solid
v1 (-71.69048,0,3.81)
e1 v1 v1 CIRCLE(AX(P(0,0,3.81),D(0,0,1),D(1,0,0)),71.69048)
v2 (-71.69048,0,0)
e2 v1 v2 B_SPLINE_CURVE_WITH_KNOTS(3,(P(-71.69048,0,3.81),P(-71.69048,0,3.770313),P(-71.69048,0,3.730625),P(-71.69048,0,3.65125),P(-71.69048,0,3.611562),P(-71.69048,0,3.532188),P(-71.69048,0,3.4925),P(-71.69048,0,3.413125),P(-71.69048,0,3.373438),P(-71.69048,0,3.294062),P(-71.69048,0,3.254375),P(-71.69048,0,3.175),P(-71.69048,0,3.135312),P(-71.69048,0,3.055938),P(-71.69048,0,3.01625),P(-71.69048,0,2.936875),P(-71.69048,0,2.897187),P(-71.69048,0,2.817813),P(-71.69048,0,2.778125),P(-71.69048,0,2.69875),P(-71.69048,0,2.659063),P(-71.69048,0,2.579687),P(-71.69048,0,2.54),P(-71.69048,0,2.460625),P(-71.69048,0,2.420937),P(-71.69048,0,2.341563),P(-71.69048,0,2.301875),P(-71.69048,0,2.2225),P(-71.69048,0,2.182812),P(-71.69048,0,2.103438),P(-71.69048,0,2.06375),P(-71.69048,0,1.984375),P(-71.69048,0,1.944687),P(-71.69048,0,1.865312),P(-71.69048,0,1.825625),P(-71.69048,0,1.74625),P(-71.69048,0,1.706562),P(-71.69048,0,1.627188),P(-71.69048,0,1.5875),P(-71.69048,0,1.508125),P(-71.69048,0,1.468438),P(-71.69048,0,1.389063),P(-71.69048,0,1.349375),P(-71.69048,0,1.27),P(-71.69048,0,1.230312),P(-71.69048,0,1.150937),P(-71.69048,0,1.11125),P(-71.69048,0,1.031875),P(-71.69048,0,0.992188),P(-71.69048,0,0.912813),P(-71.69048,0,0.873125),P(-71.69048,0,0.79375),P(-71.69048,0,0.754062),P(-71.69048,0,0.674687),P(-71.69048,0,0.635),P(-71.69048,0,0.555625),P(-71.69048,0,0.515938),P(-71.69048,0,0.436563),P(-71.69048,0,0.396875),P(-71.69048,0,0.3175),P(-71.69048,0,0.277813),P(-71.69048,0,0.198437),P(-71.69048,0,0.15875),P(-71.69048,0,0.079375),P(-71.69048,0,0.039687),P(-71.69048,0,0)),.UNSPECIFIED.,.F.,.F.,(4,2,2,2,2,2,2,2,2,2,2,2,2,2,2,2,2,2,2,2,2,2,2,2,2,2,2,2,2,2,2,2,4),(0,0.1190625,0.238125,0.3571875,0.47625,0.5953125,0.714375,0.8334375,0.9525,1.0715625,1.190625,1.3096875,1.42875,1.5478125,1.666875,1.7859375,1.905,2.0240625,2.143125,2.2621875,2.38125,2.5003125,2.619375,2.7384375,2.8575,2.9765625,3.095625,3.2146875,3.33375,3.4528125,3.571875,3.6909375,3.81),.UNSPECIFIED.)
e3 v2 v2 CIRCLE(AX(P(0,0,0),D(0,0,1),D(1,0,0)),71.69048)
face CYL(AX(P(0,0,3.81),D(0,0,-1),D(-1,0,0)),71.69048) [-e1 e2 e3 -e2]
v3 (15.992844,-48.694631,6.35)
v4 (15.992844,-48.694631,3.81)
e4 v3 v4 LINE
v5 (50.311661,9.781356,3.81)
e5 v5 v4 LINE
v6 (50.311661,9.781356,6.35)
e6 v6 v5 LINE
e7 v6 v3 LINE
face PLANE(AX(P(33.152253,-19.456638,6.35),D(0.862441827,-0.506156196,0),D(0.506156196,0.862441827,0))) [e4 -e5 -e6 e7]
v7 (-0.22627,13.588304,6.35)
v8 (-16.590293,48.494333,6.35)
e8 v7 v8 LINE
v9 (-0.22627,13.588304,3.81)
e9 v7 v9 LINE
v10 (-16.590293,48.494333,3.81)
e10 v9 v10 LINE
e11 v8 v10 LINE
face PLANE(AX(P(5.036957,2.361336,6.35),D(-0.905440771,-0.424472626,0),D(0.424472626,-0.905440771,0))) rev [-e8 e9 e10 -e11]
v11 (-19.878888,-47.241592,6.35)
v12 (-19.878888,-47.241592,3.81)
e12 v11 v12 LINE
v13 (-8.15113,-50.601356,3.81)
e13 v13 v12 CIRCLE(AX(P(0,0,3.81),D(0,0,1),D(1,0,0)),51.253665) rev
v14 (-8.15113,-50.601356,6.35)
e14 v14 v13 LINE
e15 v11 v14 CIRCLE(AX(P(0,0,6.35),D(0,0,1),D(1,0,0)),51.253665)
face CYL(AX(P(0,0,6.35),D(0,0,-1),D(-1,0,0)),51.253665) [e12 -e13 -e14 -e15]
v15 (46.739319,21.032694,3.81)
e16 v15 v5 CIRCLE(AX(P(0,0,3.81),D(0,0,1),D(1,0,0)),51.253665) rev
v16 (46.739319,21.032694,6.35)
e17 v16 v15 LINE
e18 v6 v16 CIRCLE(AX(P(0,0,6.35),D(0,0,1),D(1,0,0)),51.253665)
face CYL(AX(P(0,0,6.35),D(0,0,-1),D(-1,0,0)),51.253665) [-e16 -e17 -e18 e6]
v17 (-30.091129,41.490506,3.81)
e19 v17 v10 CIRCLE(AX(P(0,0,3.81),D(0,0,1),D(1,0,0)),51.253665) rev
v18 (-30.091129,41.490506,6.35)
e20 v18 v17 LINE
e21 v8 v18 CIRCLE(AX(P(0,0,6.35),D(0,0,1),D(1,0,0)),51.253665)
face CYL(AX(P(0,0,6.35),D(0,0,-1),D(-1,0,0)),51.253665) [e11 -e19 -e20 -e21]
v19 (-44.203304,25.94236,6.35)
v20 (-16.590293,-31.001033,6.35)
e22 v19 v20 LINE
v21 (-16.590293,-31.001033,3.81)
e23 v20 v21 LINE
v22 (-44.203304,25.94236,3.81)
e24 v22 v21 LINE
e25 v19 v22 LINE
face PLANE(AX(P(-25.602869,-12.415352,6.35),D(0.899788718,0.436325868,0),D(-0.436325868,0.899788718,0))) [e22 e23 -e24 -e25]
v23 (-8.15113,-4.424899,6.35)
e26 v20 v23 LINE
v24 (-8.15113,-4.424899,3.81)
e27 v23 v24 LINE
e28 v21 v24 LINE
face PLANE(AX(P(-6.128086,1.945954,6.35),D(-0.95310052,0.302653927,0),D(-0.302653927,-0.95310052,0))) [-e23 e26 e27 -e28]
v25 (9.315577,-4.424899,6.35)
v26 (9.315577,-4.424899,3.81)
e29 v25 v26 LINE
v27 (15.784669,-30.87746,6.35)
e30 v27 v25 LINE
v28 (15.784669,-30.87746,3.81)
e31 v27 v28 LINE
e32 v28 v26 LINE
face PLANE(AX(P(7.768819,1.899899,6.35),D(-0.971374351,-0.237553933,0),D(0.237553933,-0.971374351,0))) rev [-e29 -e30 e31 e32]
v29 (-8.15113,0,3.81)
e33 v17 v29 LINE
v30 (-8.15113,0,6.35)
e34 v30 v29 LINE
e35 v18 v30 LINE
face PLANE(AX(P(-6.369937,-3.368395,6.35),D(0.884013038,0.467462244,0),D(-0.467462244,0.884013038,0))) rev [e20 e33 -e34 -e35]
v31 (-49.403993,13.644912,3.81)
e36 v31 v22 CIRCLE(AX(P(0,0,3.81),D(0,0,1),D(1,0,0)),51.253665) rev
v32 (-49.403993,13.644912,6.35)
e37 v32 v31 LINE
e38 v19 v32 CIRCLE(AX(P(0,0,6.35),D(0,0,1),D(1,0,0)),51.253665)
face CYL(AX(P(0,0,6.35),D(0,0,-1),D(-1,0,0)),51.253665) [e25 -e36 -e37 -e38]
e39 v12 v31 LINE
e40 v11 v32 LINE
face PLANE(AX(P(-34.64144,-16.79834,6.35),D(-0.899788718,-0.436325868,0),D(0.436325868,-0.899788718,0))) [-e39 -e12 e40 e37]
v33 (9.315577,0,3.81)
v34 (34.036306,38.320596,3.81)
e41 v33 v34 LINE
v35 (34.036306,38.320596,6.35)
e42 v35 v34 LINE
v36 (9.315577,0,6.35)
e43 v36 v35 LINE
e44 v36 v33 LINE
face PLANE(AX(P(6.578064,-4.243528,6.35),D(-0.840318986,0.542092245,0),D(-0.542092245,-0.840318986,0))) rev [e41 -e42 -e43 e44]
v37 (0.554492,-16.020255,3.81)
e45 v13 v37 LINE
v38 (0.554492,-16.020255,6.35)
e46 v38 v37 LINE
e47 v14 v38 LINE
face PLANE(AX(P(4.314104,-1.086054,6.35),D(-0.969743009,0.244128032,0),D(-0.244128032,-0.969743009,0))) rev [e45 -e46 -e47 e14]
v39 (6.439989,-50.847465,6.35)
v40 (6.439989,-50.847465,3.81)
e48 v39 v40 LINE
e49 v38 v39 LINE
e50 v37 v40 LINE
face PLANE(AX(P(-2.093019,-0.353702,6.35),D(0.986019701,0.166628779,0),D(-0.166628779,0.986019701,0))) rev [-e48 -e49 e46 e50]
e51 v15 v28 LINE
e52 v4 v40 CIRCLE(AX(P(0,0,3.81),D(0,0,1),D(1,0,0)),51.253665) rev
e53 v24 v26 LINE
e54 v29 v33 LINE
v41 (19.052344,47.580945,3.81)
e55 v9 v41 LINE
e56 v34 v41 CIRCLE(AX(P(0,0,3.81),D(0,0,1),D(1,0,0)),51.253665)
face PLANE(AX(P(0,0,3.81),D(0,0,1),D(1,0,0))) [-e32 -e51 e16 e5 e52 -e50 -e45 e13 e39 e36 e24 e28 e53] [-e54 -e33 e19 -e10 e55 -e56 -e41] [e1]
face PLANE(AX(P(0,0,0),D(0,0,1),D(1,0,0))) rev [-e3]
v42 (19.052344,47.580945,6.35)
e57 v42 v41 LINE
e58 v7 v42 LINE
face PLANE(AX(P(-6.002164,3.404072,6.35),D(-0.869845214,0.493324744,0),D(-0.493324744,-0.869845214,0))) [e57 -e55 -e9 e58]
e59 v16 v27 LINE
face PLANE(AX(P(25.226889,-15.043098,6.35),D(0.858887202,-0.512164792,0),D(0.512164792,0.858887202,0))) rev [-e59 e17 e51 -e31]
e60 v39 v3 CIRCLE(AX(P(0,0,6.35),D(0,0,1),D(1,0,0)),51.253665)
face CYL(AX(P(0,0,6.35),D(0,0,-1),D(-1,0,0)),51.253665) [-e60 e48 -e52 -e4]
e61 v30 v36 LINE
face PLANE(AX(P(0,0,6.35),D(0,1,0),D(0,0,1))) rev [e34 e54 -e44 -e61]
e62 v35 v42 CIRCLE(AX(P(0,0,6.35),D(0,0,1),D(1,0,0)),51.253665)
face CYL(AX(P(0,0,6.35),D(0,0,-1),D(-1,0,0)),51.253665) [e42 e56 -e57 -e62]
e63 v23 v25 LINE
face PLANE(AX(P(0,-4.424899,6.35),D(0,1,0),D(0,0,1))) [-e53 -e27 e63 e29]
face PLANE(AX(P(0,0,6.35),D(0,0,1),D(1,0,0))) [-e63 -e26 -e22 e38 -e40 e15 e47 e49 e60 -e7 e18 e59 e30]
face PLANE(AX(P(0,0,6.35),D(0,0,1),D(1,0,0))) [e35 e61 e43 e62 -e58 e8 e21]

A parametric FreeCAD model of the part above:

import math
import FreeCAD as App
import Part
import Sketcher
from FreeCAD import Vector
Q = App.Units.Quantity

doc = App.newDocument("Part")
body = doc.addObject("PartDesign::Body", "Body")

# Sketch on XY plane
sketch1 = body.newObject("Sketcher::SketchObject", "Sketch")
sketch1.AttachmentSupport = (doc.getObject("XY_Plane"), [""])
sketch1.MapMode = "FlatFace"
sketch1.addGeometry(Part.Circle(Vector(0, 0, 0), Vector(0, 0, 1), 59), False)
sketch1.addGeometry(Part.Circle(Vector(0, 0, 0), Vector(0, 0, 1), 51), False)
sketch1.addConstraint(Sketcher.Constraint("Coincident", 0, 3, -1, 1))
sketch1.addConstraint(Sketcher.Constraint("Coincident", 1, 3, -1, 1))
sketch1.addConstraint(Sketcher.Constraint("Diameter", 0, 117.980961))
sketch1.addConstraint(Sketcher.Constraint("Diameter", 1, 102.50733))
pad1 = body.newObject("PartDesign::Pad", "Pad")
pad1.Profile = sketch1
pad1.Length = Q("0.15 in")

# Sketch on XY plane
sketch2 = body.newObject("Sketcher::SketchObject", "Sketch001")
sketch2.AttachmentSupport = (doc.getObject("XY_Plane"), [""])
sketch2.MapMode = "FlatFace"
sketch2.addGeometry(Part.ArcOfCircle(Part.Circle(Vector(0, 0, 0), Vector(0, 0, 1), 51), math.radians(108.89), math.radians(125.95)), False)
sketch2.addGeometry(Part.LineSegment(Vector(-30, 41, 0), Vector(-8, 0, 0)), False)
sketch2.addGeometry(Part.LineSegment(Vector(-8, 0, 0), Vector(9, 0, 0)), False)
sketch2.addGeometry(Part.LineSegment(Vector(9, 0, 0), Vector(34, 38, 0)), False)
sketch2.addGeometry(Part.ArcOfCircle(Part.Circle(Vector(0, 0, 0), Vector(0, 0, 1), 51), math.radians(48.39), math.radians(68.18)), False)
sketch2.addGeometry(Part.LineSegment(Vector(19, 48, 0), Vector(0, 14, 0)), False)
sketch2.addGeometry(Part.LineSegment(Vector(0, 14, 0), Vector(-17, 48, 0)), False)
sketch2.addConstraint(Sketcher.Constraint("Coincident", 0, 2, 1, 1))
sketch2.addConstraint(Sketcher.Constraint("Coincident", 1, 2, 2, 1))
sketch2.addConstraint(Sketcher.Constraint("Coincident", 2, 2, 3, 1))
sketch2.addConstraint(Sketcher.Constraint("Coincident", 3, 2, 4, 1))
sketch2.addConstraint(Sketcher.Constraint("Coincident", 4, 2, 5, 1))
sketch2.addConstraint(Sketcher.Constraint("Coincident", 5, 2, 6, 1))
sketch2.addConstraint(Sketcher.Constraint("Coincident", 6, 2, 0, 1))
sketch2.addConstraint(Sketcher.Constraint("Horizontal", 2))
sketch2.addConstraint(Sketcher.Constraint("Coincident", 0, 3, -1, 1))
sketch2.addConstraint(Sketcher.Constraint("Coincident", 4, 3, -1, 1))
sketch2.addConstraint(Sketcher.Constraint("Equal", 0, 4))
sketch2.addConstraint(Sketcher.Constraint("PointOnObject", 1, 2, -1))
sketch2.addConstraint(Sketcher.Constraint("Radius", 0, 51.253665))
sketch2.addConstraint(Sketcher.Constraint("DistanceX", 0, 2, 1, 2, 21.939999))
sketch2.addConstraint(Sketcher.Constraint("Distance", 1, 46.93427))
sketch2.addConstraint(Sketcher.Constraint("Distance", 3, 45.60244))
sketch2.addConstraint(Sketcher.Constraint("Distance", 6, 38.551421))
sketch2.addConstraint(Sketcher.Constraint("DistanceX", 2, 1, 2, 2, 17.466706))
sketch2.addConstraint(Sketcher.Constraint("DistanceX", 5, 2, -1, 1, 0.22627))
sketch2.addConstraint(Sketcher.Constraint("DistanceX", 4, 2, 3, 2, 14.983961))
sketch2.addConstraint(Sketcher.Constraint("DistanceY", 5, 2, 4, 2, 33.992641))
pad2 = body.newObject("PartDesign::Pad", "Pad001")
pad2.Profile = sketch2
pad2.Length = Q("0.25 in")

# Sketch on XY plane
sketch3 = body.newObject("Sketcher::SketchObject", "Sketch002")
sketch3.AttachmentSupport = (doc.getObject("XY_Plane"), [""])
sketch3.MapMode = "FlatFace"
sketch3.addGeometry(Part.LineSegment(Vector(-17, -31, 0), Vector(-44, 26, 0)), False)
sketch3.addGeometry(Part.ArcOfCircle(Part.Circle(Vector(0, 0, 0), Vector(0, 0, 1), 51), math.radians(149.59), math.radians(164.56)), False)
sketch3.addGeometry(Part.LineSegment(Vector(-49, 14, 0), Vector(-20, -47, 0)), False)
sketch3.addGeometry(Part.ArcOfCircle(Part.Circle(Vector(0, 0, 0), Vector(0, 0, 1), 51), math.radians(-112.82), math.radians(-99.15)), False)
sketch3.addGeometry(Part.LineSegment(Vector(-8, -51, 0), Vector(1, -16, 0)), False)
sketch3.addGeometry(Part.LineSegment(Vector(1, -16, 0), Vector(6, -51, 0)), False)
sketch3.addGeometry(Part.ArcOfCircle(Part.Circle(Vector(0, 0, 0), Vector(0, 0, 1), 51), math.radians(-82.78), math.radians(-71.82)), False)
sketch3.addGeometry(Part.LineSegment(Vector(16, -49, 0), Vector(50, 10, 0)), False)
sketch3.addGeometry(Part.ArcOfCircle(Part.Circle(Vector(0, 0, 0), Vector(0, 0, 1), 51), math.radians(11), math.radians(24.23)), False)
sketch3.addGeometry(Part.LineSegment(Vector(47, 21, 0), Vector(16, -31, 0)), False)
sketch3.addGeometry(Part.LineSegment(Vector(16, -31, 0), Vector(9, -4, 0)), False)
sketch3.addGeometry(Part.LineSegment(Vector(9, -4, 0), Vector(-8, -4, 0)), False)
sketch3.addGeometry(Part.LineSegment(Vector(-8, -4, 0), Vector(-17, -31, 0)), False)
sketch3.addConstraint(Sketcher.Constraint("Coincident", 0, 2, 1, 1))
sketch3.addConstraint(Sketcher.Constraint("Coincident", 1, 2, 2, 1))
sketch3.addConstraint(Sketcher.Constraint("Coincident", 2, 2, 3, 1))
sketch3.addConstraint(Sketcher.Constraint("Coincident", 3, 2, 4, 1))
sketch3.addConstraint(Sketcher.Constraint("Coincident", 4, 2, 5, 1))
sketch3.addConstraint(Sketcher.Constraint("Coincident", 5, 2, 6, 1))
sketch3.addConstraint(Sketcher.Constraint("Coincident", 6, 2, 7, 1))
sketch3.addConstraint(Sketcher.Constraint("Coincident", 7, 2, 8, 1))
sketch3.addConstraint(Sketcher.Constraint("Coincident", 8, 2, 9, 1))
sketch3.addConstraint(Sketcher.Constraint("Coincident", 9, 2, 10, 1))
sketch3.addConstraint(Sketcher.Constraint("Coincident", 10, 2, 11, 1))
sketch3.addConstraint(Sketcher.Constraint("Coincident", 11, 2, 12, 1))
sketch3.addConstraint(Sketcher.Constraint("Coincident", 12, 2, 0, 1))
sketch3.addConstraint(Sketcher.Constraint("Horizontal", 11))
sketch3.addConstraint(Sketcher.Constraint("Coincident", 1, 3, -1, 1))
sketch3.addConstraint(Sketcher.Constraint("Coincident", 3, 3, -1, 1))
sketch3.addConstraint(Sketcher.Constraint("Coincident", 6, 3, -1, 1))
sketch3.addConstraint(Sketcher.Constraint("Coincident", 8, 3, -1, 1))
sketch3.addConstraint(Sketcher.Constraint("Equal", 1, 3))
sketch3.addConstraint(Sketcher.Constraint("Equal", 3, 6))
sketch3.addConstraint(Sketcher.Constraint("Equal", 6, 8))
sketch3.addConstraint(Sketcher.Constraint("Parallel", 0, 2))
sketch3.addConstraint(Sketcher.Constraint("Vertical", 3, 2, 11, 2))
sketch3.addConstraint(Sketcher.Constraint("Radius", 1, 51.253665))
sketch3.addConstraint(Sketcher.Constraint("DistanceY", 10, 2, -1, 1, 4.424899))
sketch3.addConstraint(Sketcher.Constraint("DistanceY", 3, 2, 4, 2, 34.581101))
sketch3.addConstraint(Sketcher.Constraint("DistanceX", 3, 2, 9, 2, 23.935798))
sketch3.addConstraint(Sketcher.Constraint("Distance", 7, 67.802818))
sketch3.addConstraint(Sketcher.Constraint("Distance", 9, 60.438849))
sketch3.addConstraint(Sketcher.Constraint("DistanceX", 11, 2, 11, 1, 17.466706))
sketch3.addConstraint(Sketcher.Constraint("DistanceY", -1, 1, 0, 2, 25.94236))
sketch3.addConstraint(Sketcher.Constraint("DistanceY", 2, 2, -1, 1, 47.241592))
sketch3.addConstraint(Sketcher.Constraint("DistanceX", 3, 2, -1, 1, 8.15113))
sketch3.addConstraint(Sketcher.Constraint("DistanceX", -1, 1, 5, 2, 6.439989))
sketch3.addConstraint(Sketcher.Constraint("DistanceY", 6, 2, -1, 1, 48.694631))
sketch3.addConstraint(Sketcher.Constraint("DistanceX", -1, 1, 8, 2, 46.739319))
sketch3.addConstraint(Sketcher.Constraint("DistanceX", 1, 2, 0, 2, 5.200689))
sketch3.addConstraint(Sketcher.Constraint("DistanceX", 3, 2, 4, 2, 8.705622))
sketch3.addConstraint(Sketcher.Constraint("DistanceY", 2, 2, 12, 2, 16.240558))
pad3 = body.newObject("PartDesign::Pad", "Pad002")
pad3.Profile = sketch3
pad3.Length = Q("0.25 in")

# Sketch on XY plane
sketch4 = body.newObject("Sketcher::SketchObject", "Sketch003")
sketch4.AttachmentSupport = (doc.getObject("XY_Plane"), [""])
sketch4.MapMode = "FlatFace"
sketch4.addGeometry(Part.ArcOfCircle(Part.Circle(Vector(0, 0, 0), Vector(0, 0, 1), 51), math.radians(108.89), math.radians(125.95)), False)
sketch4.addGeometry(Part.LineSegment(Vector(-30, 41, 0), Vector(-8, 0, 0)), False)
sketch4.addGeometry(Part.LineSegment(Vector(-8, 0, 0), Vector(9, 0, 0)), False)
sketch4.addGeometry(Part.LineSegment(Vector(9, 0, 0), Vector(34, 38, 0)), False)
sketch4.addGeometry(Part.ArcOfCircle(Part.Circle(Vector(0, 0, 0), Vector(0, 0, 1), 51), math.radians(48.39), math.radians(68.18)), False)
sketch4.addGeometry(Part.LineSegment(Vector(19, 48, 0), Vector(0, 14, 0)), False)
sketch4.addGeometry(Part.LineSegment(Vector(0, 14, 0), Vector(-17, 48, 0)), False)
sketch4.addConstraint(Sketcher.Constraint("Coincident", 0, 2, 1, 1))
sketch4.addConstraint(Sketcher.Constraint("Coincident", 1, 2, 2, 1))
sketch4.addConstraint(Sketcher.Constraint("Coincident", 2, 2, 3, 1))
sketch4.addConstraint(Sketcher.Constraint("Coincident", 3, 2, 4, 1))
sketch4.addConstraint(Sketcher.Constraint("Coincident", 4, 2, 5, 1))
sketch4.addConstraint(Sketcher.Constraint("Coincident", 5, 2, 6, 1))
sketch4.addConstraint(Sketcher.Constraint("Coincident", 6, 2, 0, 1))
sketch4.addConstraint(Sketcher.Constraint("Horizontal", 2))
sketch4.addConstraint(Sketcher.Constraint("Coincident", 0, 3, -1, 1))
sketch4.addConstraint(Sketcher.Constraint("Coincident", 4, 3, -1, 1))
sketch4.addConstraint(Sketcher.Constraint("Equal", 0, 4))
sketch4.addConstraint(Sketcher.Constraint("PointOnObject", 1, 2, -1))
sketch4.addConstraint(Sketcher.Constraint("Radius", 0, 51.253665))
sketch4.addConstraint(Sketcher.Constraint("DistanceX", 0, 2, 1, 2, 21.939999))
sketch4.addConstraint(Sketcher.Constraint("Distance", 1, 46.93427))
sketch4.addConstraint(Sketcher.Constraint("Distance", 3, 45.60244))
sketch4.addConstraint(Sketcher.Constraint("Distance", 6, 38.551421))
sketch4.addConstraint(Sketcher.Constraint("DistanceX", 2, 1, 2, 2, 17.466706))
sketch4.addConstraint(Sketcher.Constraint("DistanceX", 5, 2, -1, 1, 0.22627))
sketch4.addConstraint(Sketcher.Constraint("DistanceX", 4, 2, 3, 2, 14.983961))
sketch4.addConstraint(Sketcher.Constraint("DistanceY", 5, 2, 4, 2, 33.992641))
pad4 = body.newObject("PartDesign::Pad", "Pad003")
pad4.Profile = sketch4
pad4.Length = Q("0.05 in")

# Sketch on XY plane
sketch5 = body.newObject("Sketcher::SketchObject", "Sketch004")
sketch5.AttachmentSupport = (doc.getObject("XY_Plane"), [""])
sketch5.MapMode = "FlatFace"
sketch5.addGeometry(Part.LineSegment(Vector(-17, -31, 0), Vector(-44, 26, 0)), False)
sketch5.addGeometry(Part.ArcOfCircle(Part.Circle(Vector(0, 0, 0), Vector(0, 0, 1), 51), math.radians(149.59), math.radians(164.56)), False)
sketch5.addGeometry(Part.LineSegment(Vector(-49, 14, 0), Vector(-20, -47, 0)), False)
sketch5.addGeometry(Part.ArcOfCircle(Part.Circle(Vector(0, 0, 0), Vector(0, 0, 1), 51), math.radians(-112.82), math.radians(-99.15)), False)
sketch5.addGeometry(Part.LineSegment(Vector(-8, -51, 0), Vector(1, -16, 0)), False)
sketch5.addGeometry(Part.LineSegment(Vector(1, -16, 0), Vector(6, -51, 0)), False)
sketch5.addGeometry(Part.ArcOfCircle(Part.Circle(Vector(0, 0, 0), Vector(0, 0, 1), 51), math.radians(-82.78), math.radians(-71.82)), False)
sketch5.addGeometry(Part.LineSegment(Vector(16, -49, 0), Vector(50, 10, 0)), False)
sketch5.addGeometry(Part.ArcOfCircle(Part.Circle(Vector(0, 0, 0), Vector(0, 0, 1), 51), math.radians(11), math.radians(24.23)), False)
sketch5.addGeometry(Part.LineSegment(Vector(47, 21, 0), Vector(16, -31, 0)), False)
sketch5.addGeometry(Part.LineSegment(Vector(16, -31, 0), Vector(9, -4, 0)), False)
sketch5.addGeometry(Part.LineSegment(Vector(9, -4, 0), Vector(-8, -4, 0)), False)
sketch5.addGeometry(Part.LineSegment(Vector(-8, -4, 0), Vector(-17, -31, 0)), False)
sketch5.addGeometry(Part.ArcOfCircle(Part.Circle(Vector(0, 0, 0), Vector(0, 0, 1), 51), math.radians(108.89), math.radians(125.95)), False)
sketch5.addGeometry(Part.LineSegment(Vector(-30, 41, 0), Vector(-8, 0, 0)), False)
sketch5.addGeometry(Part.LineSegment(Vector(-8, 0, 0), Vector(9, 0, 0)), False)
sketch5.addGeometry(Part.LineSegment(Vector(9, 0, 0), Vector(34, 38, 0)), False)
sketch5.addGeometry(Part.ArcOfCircle(Part.Circle(Vector(0, 0, 0), Vector(0, 0, 1), 51), math.radians(48.39), math.radians(68.18)), False)
sketch5.addGeometry(Part.LineSegment(Vector(19, 48, 0), Vector(0, 14, 0)), False)
sketch5.addGeometry(Part.LineSegment(Vector(0, 14, 0), Vector(-17, 48, 0)), False)
sketch5.addConstraint(Sketcher.Constraint("Coincident", 0, 2, 1, 1))
sketch5.addConstraint(Sketcher.Constraint("Coincident", 1, 2, 2, 1))
sketch5.addConstraint(Sketcher.Constraint("Coincident", 2, 2, 3, 1))
sketch5.addConstraint(Sketcher.Constraint("Coincident", 3, 2, 4, 1))
sketch5.addConstraint(Sketcher.Constraint("Coincident", 4, 2, 5, 1))
sketch5.addConstraint(Sketcher.Constraint("Coincident", 5, 2, 6, 1))
sketch5.addConstraint(Sketcher.Constraint("Coincident", 6, 2, 7, 1))
sketch5.addConstraint(Sketcher.Constraint("Coincident", 7, 2, 8, 1))
sketch5.addConstraint(Sketcher.Constraint("Coincident", 8, 2, 9, 1))
sketch5.addConstraint(Sketcher.Constraint("Coincident", 9, 2, 10, 1))
sketch5.addConstraint(Sketcher.Constraint("Coincident", 10, 2, 11, 1))
sketch5.addConstraint(Sketcher.Constraint("Coincident", 11, 2, 12, 1))
sketch5.addConstraint(Sketcher.Constraint("Coincident", 12, 2, 0, 1))
sketch5.addConstraint(Sketcher.Constraint("Coincident", 13, 2, 14, 1))
sketch5.addConstraint(Sketcher.Constraint("Coincident", 14, 2, 15, 1))
sketch5.addConstraint(Sketcher.Constraint("Coincident", 15, 2, 16, 1))
sketch5.addConstraint(Sketcher.Constraint("Coincident", 16, 2, 17, 1))
sketch5.addConstraint(Sketcher.Constraint("Coincident", 17, 2, 18, 1))
sketch5.addConstraint(Sketcher.Constraint("Coincident", 18, 2, 19, 1))
sketch5.addConstraint(Sketcher.Constraint("Coincident", 19, 2, 13, 1))
sketch5.addConstraint(Sketcher.Constraint("Horizontal", 11))
sketch5.addConstraint(Sketcher.Constraint("Horizontal", 15))
sketch5.addConstraint(Sketcher.Constraint("Coincident", 1, 3, -1, 1))
sketch5.addConstraint(Sketcher.Constraint("Coincident", 3, 3, -1, 1))
sketch5.addConstraint(Sketcher.Constraint("Coincident", 6, 3, -1, 1))
sketch5.addConstraint(Sketcher.Constraint("Coincident", 8, 3, -1, 1))
sketch5.addConstraint(Sketcher.Constraint("Coincident", 13, 3, -1, 1))
sketch5.addConstraint(Sketcher.Constraint("Coincident", 17, 3, -1, 1))
sketch5.addConstraint(Sketcher.Constraint("Equal", 1, 3))
sketch5.addConstraint(Sketcher.Constraint("Equal", 3, 6))
sketch5.addConstraint(Sketcher.Constraint("Equal", 6, 8))
sketch5.addConstraint(Sketcher.Constraint("Equal", 8, 13))
sketch5.addConstraint(Sketcher.Constraint("Equal", 13, 17))
sketch5.addConstraint(Sketcher.Constraint("PointOnObject", 14, 2, -1))
sketch5.addConstraint(Sketcher.Constraint("Parallel", 0, 2))
sketch5.addConstraint(Sketcher.Constraint("Vertical", 3, 2, 11, 2))
sketch5.addConstraint(Sketcher.Constraint("Vertical", 11, 2, 14, 2))
sketch5.addConstraint(Sketcher.Constraint("Vertical", 10, 2, 15, 2))
sketch5.addConstraint(Sketcher.Constraint("Vertical", 12, 2, 19, 2))
sketch5.addConstraint(Sketcher.Constraint("Radius", 1, 51.253665))
sketch5.addConstraint(Sketcher.Constraint("DistanceY", 10, 2, -1, 1, 4.424899))
sketch5.addConstraint(Sketcher.Constraint("DistanceX", 3, 2, 9, 2, 23.935798))
sketch5.addConstraint(Sketcher.Constraint("DistanceX", 13, 2, 11, 2, 21.939999))
sketch5.addConstraint(Sketcher.Constraint("DistanceX", 1, 2, 19, 2, 32.813699))
sketch5.addConstraint(Sketcher.Constraint("Distance", 7, 67.802818))
sketch5.addConstraint(Sketcher.Constraint("Distance", 9, 60.438849))
sketch5.addConstraint(Sketcher.Constraint("Distance", 14, 46.93427))
sketch5.addConstraint(Sketcher.Constraint("Distance", 16, 45.60244))
sketch5.addConstraint(Sketcher.Constraint("Distance", 19, 38.551421))
sketch5.addConstraint(Sketcher.Constraint("DistanceX", 11, 2, 11, 1, 17.466706))
sketch5.addConstraint(Sketcher.Constraint("DistanceY", -1, 1, 0, 2, 25.94236))
sketch5.addConstraint(Sketcher.Constraint("DistanceY", 2, 2, -1, 1, 47.241592))
sketch5.addConstraint(Sketcher.Constraint("DistanceX", -1, 1, 5, 2, 6.439989))
sketch5.addConstraint(Sketcher.Constraint("DistanceY", 6, 2, -1, 1, 48.694631))
sketch5.addConstraint(Sketcher.Constraint("DistanceX", -1, 1, 8, 2, 46.739319))
sketch5.addConstraint(Sketcher.Constraint("DistanceX", 18, 2, -1, 1, 0.22627))
sketch5.addConstraint(Sketcher.Constraint("DistanceX", 1, 2, 0, 2, 5.200689))
sketch5.addConstraint(Sketcher.Constraint("DistanceY", 5, 2, 4, 2, 34.82721))
sketch5.addConstraint(Sketcher.Constraint("DistanceX", 17, 2, 16, 2, 14.983961))
sketch5.addConstraint(Sketcher.Constraint("Distance", 4, 35.660067))
pad5 = body.newObject("PartDesign::Pad", "Pad004")
pad5.Profile = sketch5
pad5.Length = Q("0.15 in")

# Sketch on XY plane
sketch6 = body.newObject("Sketcher::SketchObject", "Sketch005")
sketch6.AttachmentSupport = (doc.getObject("XY_Plane"), [""])
sketch6.MapMode = "FlatFace"
sketch6.addGeometry(Part.Circle(Vector(0, 0, 0), Vector(0, 0, 1), 72), False)
sketch6.addConstraint(Sketcher.Constraint("Coincident", 0, 3, -1, 1))
sketch6.addConstraint(Sketcher.Constraint("Diameter", 0, 143.380961))
pad6 = body.newObject("PartDesign::Pad", "Pad005")
pad6.Profile = sketch6
pad6.Length = Q("0.15 in")

doc.recompute()
